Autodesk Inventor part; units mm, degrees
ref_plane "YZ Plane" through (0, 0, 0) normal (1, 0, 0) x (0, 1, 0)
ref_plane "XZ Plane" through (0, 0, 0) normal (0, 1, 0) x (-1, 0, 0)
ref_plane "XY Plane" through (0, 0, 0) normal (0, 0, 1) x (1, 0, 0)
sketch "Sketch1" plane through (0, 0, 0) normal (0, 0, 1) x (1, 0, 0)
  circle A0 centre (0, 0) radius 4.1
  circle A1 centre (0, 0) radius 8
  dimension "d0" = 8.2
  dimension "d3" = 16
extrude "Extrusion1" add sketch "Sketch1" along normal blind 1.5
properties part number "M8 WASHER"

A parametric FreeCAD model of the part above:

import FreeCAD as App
import Part
import Sketcher

doc = App.newDocument("Part")
body = doc.addObject("PartDesign::Body", "Body")

sketch1 = body.newObject("Sketcher::SketchObject", "Sketch")
sketch1.AttachmentSupport = (doc.getObject("XY_Plane"), [""])
sketch1.MapMode = "FlatFace"
sketch1.addGeometry(Part.Circle(App.Vector(0, 0, 0), App.Vector(0, 0, 1), 8), False)
sketch1.addGeometry(Part.Circle(App.Vector(0, 0, 0), App.Vector(0, 0, 1), 4.1), False)
sketch1.addConstraint(Sketcher.Constraint("Coincident", 0, 3, -1, 1))
sketch1.addConstraint(Sketcher.Constraint("Coincident", 1, 3, -1, 1))
sketch1.addConstraint(Sketcher.Constraint("Diameter", 0, 16.0))
sketch1.addConstraint(Sketcher.Constraint("Diameter", 1, 8.2))
pad1 = body.newObject("PartDesign::Pad", "Pad")
pad1.Profile = sketch1
pad1.Length = 1.5

doc.recompute()
